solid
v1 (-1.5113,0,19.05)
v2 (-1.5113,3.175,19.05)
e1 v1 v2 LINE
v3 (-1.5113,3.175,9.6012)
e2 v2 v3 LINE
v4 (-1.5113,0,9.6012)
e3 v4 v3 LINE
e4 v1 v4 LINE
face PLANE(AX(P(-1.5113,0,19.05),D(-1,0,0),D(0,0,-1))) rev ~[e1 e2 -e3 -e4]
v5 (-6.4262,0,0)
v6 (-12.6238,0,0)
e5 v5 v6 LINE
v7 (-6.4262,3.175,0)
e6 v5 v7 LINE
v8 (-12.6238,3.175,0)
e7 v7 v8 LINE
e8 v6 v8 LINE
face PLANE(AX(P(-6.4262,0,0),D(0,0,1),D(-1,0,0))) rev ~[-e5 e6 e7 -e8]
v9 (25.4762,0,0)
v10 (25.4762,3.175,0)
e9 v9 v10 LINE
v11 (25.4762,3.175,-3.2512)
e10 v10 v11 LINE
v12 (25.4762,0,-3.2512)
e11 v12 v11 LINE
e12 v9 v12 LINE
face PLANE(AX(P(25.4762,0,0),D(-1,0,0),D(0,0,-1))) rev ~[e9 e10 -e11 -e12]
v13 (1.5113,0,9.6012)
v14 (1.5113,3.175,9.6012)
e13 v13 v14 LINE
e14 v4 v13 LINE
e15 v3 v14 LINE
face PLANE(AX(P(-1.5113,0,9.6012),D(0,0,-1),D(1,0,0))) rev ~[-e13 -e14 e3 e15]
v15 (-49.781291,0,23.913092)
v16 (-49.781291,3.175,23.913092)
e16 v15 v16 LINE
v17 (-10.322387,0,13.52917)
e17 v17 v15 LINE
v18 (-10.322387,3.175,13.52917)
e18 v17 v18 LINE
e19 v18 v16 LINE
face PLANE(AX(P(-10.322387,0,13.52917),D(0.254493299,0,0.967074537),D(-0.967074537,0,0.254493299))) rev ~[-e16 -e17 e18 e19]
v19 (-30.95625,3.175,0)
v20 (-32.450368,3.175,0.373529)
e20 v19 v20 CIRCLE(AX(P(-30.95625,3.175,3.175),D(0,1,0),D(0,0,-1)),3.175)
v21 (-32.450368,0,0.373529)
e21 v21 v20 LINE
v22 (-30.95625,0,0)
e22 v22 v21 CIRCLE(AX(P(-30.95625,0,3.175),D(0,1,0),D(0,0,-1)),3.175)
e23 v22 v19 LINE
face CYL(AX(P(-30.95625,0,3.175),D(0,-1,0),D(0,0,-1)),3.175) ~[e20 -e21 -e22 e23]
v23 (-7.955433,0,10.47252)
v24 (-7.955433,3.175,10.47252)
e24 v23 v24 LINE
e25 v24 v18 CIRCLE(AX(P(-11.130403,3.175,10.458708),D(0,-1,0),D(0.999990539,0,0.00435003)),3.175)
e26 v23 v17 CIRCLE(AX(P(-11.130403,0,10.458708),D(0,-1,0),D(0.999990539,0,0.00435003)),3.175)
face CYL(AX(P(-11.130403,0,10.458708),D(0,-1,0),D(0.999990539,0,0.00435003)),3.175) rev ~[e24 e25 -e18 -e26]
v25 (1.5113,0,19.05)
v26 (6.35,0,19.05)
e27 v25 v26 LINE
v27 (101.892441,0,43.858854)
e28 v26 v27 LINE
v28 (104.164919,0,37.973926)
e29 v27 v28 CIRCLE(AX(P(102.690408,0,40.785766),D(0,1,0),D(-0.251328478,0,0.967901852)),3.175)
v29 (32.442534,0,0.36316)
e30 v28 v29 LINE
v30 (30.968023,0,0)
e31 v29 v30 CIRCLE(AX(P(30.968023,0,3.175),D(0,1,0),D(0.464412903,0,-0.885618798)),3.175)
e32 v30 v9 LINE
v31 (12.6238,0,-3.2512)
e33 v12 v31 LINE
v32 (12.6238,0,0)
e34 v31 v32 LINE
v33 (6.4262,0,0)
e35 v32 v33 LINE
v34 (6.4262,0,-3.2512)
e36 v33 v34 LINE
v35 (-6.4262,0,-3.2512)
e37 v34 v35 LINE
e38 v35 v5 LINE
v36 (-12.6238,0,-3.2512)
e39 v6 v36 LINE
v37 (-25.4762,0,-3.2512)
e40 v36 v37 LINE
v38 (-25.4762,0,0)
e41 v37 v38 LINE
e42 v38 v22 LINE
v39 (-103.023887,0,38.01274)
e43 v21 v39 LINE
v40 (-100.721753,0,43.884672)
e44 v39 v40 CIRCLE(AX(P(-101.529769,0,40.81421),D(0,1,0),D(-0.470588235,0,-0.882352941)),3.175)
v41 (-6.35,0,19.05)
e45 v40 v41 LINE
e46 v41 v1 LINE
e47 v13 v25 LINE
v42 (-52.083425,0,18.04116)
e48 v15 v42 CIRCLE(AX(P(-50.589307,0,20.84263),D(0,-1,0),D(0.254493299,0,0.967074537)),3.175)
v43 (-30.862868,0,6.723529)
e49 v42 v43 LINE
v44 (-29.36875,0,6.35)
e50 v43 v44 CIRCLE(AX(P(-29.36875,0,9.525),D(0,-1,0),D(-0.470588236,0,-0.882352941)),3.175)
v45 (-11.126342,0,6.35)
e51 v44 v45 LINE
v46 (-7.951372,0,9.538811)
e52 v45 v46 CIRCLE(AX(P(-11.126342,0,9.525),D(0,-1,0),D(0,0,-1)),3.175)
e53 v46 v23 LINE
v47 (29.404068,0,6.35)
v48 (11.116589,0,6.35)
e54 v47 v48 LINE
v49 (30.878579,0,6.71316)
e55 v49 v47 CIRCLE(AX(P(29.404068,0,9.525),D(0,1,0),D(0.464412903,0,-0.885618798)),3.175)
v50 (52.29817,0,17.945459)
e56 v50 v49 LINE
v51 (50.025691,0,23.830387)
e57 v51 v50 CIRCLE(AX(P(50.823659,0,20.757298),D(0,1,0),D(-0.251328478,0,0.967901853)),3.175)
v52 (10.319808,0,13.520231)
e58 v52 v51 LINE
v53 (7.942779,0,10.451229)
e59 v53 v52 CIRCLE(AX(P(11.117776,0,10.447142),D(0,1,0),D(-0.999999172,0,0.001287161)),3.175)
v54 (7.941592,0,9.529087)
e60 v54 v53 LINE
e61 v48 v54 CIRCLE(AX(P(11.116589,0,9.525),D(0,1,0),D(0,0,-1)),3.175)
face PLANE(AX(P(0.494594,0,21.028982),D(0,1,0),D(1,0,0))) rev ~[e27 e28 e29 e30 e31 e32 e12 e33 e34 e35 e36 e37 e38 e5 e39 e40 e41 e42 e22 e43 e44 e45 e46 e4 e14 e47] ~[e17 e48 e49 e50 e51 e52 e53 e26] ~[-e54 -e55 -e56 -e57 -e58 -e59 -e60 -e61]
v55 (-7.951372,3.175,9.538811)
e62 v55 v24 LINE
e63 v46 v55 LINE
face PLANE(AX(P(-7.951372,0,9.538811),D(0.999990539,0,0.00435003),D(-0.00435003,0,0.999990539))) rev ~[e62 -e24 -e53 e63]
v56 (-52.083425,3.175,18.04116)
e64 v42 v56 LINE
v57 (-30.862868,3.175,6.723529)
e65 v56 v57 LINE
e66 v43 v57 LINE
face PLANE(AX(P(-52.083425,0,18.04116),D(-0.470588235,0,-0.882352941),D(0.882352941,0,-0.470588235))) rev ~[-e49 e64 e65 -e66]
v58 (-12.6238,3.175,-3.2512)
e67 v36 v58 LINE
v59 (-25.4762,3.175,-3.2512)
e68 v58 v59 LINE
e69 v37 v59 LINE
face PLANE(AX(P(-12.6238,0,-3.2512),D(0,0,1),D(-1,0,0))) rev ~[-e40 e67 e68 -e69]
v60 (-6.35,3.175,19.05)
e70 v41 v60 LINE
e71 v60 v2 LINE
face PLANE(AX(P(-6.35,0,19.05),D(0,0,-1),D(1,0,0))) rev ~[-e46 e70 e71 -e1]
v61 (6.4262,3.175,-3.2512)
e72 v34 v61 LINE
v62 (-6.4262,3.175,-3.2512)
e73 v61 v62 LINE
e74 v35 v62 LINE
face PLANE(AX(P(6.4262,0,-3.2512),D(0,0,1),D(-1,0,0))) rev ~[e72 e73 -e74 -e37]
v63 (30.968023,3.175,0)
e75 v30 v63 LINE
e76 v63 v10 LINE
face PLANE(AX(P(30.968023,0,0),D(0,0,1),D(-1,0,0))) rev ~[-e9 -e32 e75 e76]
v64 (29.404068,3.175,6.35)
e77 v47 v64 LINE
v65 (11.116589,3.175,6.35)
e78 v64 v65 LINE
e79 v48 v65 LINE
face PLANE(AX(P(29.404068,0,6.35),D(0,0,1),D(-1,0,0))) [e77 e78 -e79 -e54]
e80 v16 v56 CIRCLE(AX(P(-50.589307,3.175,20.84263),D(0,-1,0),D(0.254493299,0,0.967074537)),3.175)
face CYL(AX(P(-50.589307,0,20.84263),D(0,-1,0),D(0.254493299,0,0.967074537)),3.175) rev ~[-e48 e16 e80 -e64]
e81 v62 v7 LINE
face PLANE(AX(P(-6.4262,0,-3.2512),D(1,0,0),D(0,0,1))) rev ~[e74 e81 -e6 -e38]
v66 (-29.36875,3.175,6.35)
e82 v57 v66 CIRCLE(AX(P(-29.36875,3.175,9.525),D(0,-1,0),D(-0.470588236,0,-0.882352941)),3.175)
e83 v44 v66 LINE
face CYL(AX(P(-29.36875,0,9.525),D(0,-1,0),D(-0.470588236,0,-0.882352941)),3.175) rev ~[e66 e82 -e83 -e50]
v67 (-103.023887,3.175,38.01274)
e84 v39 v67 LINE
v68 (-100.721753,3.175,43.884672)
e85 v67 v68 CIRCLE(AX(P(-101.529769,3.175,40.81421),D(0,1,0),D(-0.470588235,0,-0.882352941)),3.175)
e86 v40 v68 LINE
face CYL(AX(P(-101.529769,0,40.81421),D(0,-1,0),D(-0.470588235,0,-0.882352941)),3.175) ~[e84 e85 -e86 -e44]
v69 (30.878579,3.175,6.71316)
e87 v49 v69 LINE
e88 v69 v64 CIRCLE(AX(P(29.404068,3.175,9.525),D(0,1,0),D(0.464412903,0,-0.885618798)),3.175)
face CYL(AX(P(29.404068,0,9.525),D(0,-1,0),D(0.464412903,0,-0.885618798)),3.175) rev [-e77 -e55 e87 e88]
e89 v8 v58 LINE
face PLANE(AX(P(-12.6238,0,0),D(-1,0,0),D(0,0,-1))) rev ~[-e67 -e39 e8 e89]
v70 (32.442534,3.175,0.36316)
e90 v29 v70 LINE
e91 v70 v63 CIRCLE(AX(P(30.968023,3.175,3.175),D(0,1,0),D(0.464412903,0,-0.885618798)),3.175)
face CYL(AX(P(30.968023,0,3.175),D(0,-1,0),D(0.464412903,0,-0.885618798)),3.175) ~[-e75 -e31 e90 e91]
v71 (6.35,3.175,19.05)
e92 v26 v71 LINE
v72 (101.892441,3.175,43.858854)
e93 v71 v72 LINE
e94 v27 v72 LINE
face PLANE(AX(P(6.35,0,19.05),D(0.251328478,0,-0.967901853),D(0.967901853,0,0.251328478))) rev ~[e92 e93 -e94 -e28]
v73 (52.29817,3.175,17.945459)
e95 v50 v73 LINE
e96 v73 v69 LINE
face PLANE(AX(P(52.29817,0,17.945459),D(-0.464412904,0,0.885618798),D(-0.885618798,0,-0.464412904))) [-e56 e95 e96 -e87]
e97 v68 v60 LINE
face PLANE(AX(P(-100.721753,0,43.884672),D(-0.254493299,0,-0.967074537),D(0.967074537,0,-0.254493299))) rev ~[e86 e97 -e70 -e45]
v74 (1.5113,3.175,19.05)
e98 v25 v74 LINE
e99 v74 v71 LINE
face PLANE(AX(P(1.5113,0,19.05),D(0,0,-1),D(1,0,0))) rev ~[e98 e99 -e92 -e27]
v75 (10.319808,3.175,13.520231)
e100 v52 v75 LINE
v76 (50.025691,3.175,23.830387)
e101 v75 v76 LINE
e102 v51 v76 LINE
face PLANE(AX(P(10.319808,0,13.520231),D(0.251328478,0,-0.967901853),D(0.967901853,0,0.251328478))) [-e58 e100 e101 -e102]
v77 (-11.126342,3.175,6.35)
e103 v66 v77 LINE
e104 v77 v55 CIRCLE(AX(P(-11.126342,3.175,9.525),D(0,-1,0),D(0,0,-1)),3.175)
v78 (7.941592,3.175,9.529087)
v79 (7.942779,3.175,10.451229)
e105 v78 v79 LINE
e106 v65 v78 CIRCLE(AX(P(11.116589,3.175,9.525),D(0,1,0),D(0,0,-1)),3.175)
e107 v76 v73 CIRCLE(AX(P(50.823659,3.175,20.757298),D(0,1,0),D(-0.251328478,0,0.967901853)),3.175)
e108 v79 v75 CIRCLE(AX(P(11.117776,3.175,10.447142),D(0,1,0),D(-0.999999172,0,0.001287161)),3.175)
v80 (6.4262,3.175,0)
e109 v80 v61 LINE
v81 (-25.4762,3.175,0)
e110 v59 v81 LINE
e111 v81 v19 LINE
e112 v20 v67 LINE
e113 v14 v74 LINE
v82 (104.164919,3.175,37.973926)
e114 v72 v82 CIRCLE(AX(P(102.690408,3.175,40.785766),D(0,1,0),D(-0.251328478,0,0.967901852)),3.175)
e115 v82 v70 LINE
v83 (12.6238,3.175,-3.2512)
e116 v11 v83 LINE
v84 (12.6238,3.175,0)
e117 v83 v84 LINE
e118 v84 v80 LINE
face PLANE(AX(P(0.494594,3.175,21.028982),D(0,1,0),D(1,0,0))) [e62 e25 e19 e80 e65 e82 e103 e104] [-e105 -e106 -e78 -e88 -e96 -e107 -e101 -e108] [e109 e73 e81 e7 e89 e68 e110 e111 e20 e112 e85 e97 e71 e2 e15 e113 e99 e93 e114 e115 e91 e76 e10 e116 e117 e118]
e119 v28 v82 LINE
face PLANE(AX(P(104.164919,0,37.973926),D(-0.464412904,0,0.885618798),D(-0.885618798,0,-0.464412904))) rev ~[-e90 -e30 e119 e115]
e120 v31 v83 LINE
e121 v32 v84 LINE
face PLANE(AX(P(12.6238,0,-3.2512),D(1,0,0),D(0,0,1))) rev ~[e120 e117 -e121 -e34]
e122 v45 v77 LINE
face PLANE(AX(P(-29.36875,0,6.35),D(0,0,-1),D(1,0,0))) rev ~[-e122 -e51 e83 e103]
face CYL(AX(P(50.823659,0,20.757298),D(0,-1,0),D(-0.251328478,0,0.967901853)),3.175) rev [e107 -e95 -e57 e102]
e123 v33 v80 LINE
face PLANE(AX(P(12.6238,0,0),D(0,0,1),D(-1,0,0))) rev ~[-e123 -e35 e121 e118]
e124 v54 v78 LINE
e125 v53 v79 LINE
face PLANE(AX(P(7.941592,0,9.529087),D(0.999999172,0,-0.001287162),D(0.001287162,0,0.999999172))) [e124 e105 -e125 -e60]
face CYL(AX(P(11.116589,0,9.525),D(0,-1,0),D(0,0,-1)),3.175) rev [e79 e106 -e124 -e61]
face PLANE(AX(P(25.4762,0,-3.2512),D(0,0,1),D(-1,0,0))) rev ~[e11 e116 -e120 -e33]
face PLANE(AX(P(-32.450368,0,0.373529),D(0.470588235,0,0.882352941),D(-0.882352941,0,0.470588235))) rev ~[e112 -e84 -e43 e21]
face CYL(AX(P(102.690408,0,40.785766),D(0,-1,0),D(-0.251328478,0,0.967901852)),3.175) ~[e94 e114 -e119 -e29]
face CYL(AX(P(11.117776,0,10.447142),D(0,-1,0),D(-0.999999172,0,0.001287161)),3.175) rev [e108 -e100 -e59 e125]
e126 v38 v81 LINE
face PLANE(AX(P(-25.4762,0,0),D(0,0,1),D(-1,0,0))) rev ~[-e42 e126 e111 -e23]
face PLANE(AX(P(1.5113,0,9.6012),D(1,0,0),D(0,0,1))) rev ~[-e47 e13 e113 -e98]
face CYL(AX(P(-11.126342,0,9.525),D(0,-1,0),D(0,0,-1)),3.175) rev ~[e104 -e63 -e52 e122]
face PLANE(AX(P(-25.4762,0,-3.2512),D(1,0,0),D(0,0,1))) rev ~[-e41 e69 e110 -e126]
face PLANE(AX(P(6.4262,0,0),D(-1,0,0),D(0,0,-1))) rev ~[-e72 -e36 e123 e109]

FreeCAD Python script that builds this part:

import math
import FreeCAD as App
import Part
import Sketcher
from FreeCAD import Vector
Q = App.Units.Quantity

doc = App.newDocument("Part")
params = doc.addObject("Spreadsheet::Sheet", "Params")
for row, (alias, value) in enumerate([
    ("sketch1_radius", "0.125 in"),
    ("sketch1_radius2", "0.125 in"),
    ("sketch1_radius3", "0.125 in"),
    ("sketch1_radius4", "0.125 in"),
    ("sketch1_radius5", "0.125 in"),
    ("pad1_length", "0.125 in"),
], start=1):
    params.set(f"A{row}", alias)
    params.set(f"B{row}", "=" + value)
    params.setAlias(f"B{row}", alias)

body = doc.addObject("PartDesign::Body", "Body")

sketch1 = body.newObject("Sketcher::SketchObject", "Sketch")
sketch1.AttachmentSupport = (doc.getObject("XZ_Plane"), [""])
sketch1.MapMode = "FlatFace"
sketch1.addGeometry([
    Part.LineSegment(Vector(-1.5113, 19.05, 0), Vector(-1.5113, 9.6012, 0)),
    Part.LineSegment(Vector(-1.5113, 9.6012, 0), Vector(1.5113, 9.6012, 0)),
    Part.LineSegment(Vector(1.5113, 9.6012, 0), Vector(1.5113, 19.05, 0)),
    Part.LineSegment(Vector(1.5113, 19.05, 0), Vector(6.35, 19.05, 0)),
    Part.LineSegment(Vector(6.35, 19.05, 0), Vector(101.892441, 43.858854, 0)),
    Part.ArcOfCircle(Part.Circle(Vector(102.690408, 40.785766, 0), Vector(0, 0, 1), 3.175), math.radians(-62.327767), math.radians(104.556139)),
    Part.LineSegment(Vector(104.164919, 37.973926, 0), Vector(32.442534, 0.36316, 0)),
    Part.ArcOfCircle(Part.Circle(Vector(30.968023, 3.175, 0), Vector(0, 0, 1), 3.175), math.radians(-90), math.radians(-62.327767)),
    Part.LineSegment(Vector(30.968023, 0, 0), Vector(25.4762, 0, 0)),
    Part.LineSegment(Vector(25.4762, 0, 0), Vector(25.4762, -3.2512, 0)),
    Part.LineSegment(Vector(25.4762, -3.2512, 0), Vector(12.6238, -3.2512, 0)),
    Part.LineSegment(Vector(12.6238, -3.2512, 0), Vector(12.6238, 0, 0)),
    Part.LineSegment(Vector(12.6238, 0, 0), Vector(6.4262, 0, 0)),
    Part.LineSegment(Vector(6.4262, 0, 0), Vector(6.4262, -3.2512, 0)),
    Part.LineSegment(Vector(6.4262, -3.2512, 0), Vector(-6.4262, -3.2512, 0)),
    Part.LineSegment(Vector(-6.4262, -3.2512, 0), Vector(-6.4262, 0, 0)),
    Part.LineSegment(Vector(-6.4262, 0, 0), Vector(-12.6238, 0, 0)),
    Part.LineSegment(Vector(-12.6238, 0, 0), Vector(-12.6238, -3.2512, 0)),
    Part.LineSegment(Vector(-12.6238, -3.2512, 0), Vector(-25.4762, -3.2512, 0)),
    Part.LineSegment(Vector(-25.4762, -3.2512, 0), Vector(-25.4762, 0, 0)),
    Part.LineSegment(Vector(-25.4762, 0, 0), Vector(-30.95625, 0, 0)),
    Part.ArcOfCircle(Part.Circle(Vector(-30.95625, 3.175, 0), Vector(0, 0, 1), 3.175), math.radians(-118.072487), math.radians(-90)),
    Part.LineSegment(Vector(-32.450368, 0.373529, 0), Vector(-103.023887, 38.01274, 0)),
    Part.ArcOfCircle(Part.Circle(Vector(-101.529769, 40.81421, 0), Vector(0, 0, 1), 3.175), math.radians(75.256437), math.radians(241.927513)),
    Part.LineSegment(Vector(-100.721753, 43.884672, 0), Vector(-6.35, 19.05, 0)),
    Part.LineSegment(Vector(-6.35, 19.05, 0), Vector(-1.5113, 19.05, 0)),
    Part.ArcOfCircle(Part.Circle(Vector(-50.589307, 20.84263, 0), Vector(0, 0, 1), 3.175), math.radians(75.256437), math.radians(241.927513)),
    Part.LineSegment(Vector(-52.083425, 18.04116, 0), Vector(-30.862868, 6.723529, 0)),
    Part.ArcOfCircle(Part.Circle(Vector(-29.36875, 9.525, 0), Vector(0, 0, 1), 3.175), math.radians(-118.072487), math.radians(-90)),
    Part.LineSegment(Vector(-29.36875, 6.35, 0), Vector(-11.126342, 6.35, 0)),
    Part.ArcOfCircle(Part.Circle(Vector(-11.126342, 9.525, 0), Vector(0, 0, 1), 3.175), math.radians(-90), math.radians(0.249239)),
    Part.LineSegment(Vector(-7.951372, 9.538811, 0), Vector(-7.955433, 10.47252, 0)),
    Part.ArcOfCircle(Part.Circle(Vector(-11.130403, 10.458708, 0), Vector(0, 0, 1), 3.175), math.radians(0.249239), math.radians(75.256437)),
    Part.LineSegment(Vector(-10.322387, 13.52917, 0), Vector(-49.781291, 23.913092, 0)),
    Part.LineSegment(Vector(7.942779, 10.451229, 0), Vector(7.941592, 9.529087, 0)),
    Part.ArcOfCircle(Part.Circle(Vector(11.116589, 9.525, 0), Vector(0, 0, 1), 3.175), math.radians(179.926251), math.radians(270)),
    Part.LineSegment(Vector(11.116589, 6.35, 0), Vector(29.404068, 6.35, 0)),
    Part.ArcOfCircle(Part.Circle(Vector(29.404068, 9.525, 0), Vector(0, 0, 1), 3.175), math.radians(-90), math.radians(-62.327767)),
    Part.LineSegment(Vector(30.878579, 6.71316, 0), Vector(52.29817, 17.945459, 0)),
    Part.ArcOfCircle(Part.Circle(Vector(50.823659, 20.757298, 0), Vector(0, 0, 1), 3.175), math.radians(-62.327767), math.radians(104.556139)),
    Part.LineSegment(Vector(50.025691, 23.830387, 0), Vector(10.319808, 13.520231, 0)),
    Part.ArcOfCircle(Part.Circle(Vector(11.117776, 10.447142, 0), Vector(0, 0, 1), 3.175), math.radians(104.556139), math.radians(179.926251)),
], False)
sketch1.addConstraint([
    Sketcher.Constraint("Coincident", 0, 2, 1, 1),
    Sketcher.Constraint("Coincident", 1, 2, 2, 1),
    Sketcher.Constraint("Coincident", 2, 2, 3, 1),
    Sketcher.Constraint("Coincident", 3, 2, 4, 1),
    Sketcher.Constraint("Coincident", 4, 2, 5, 2),
    Sketcher.Constraint("Coincident", 5, 1, 6, 1),
    Sketcher.Constraint("Coincident", 6, 2, 7, 2),
    Sketcher.Constraint("Coincident", 7, 1, 8, 1),
    Sketcher.Constraint("Coincident", 8, 2, 9, 1),
    Sketcher.Constraint("Coincident", 9, 2, 10, 1),
    Sketcher.Constraint("Coincident", 10, 2, 11, 1),
    Sketcher.Constraint("Coincident", 11, 2, 12, 1),
    Sketcher.Constraint("Coincident", 12, 2, 13, 1),
    Sketcher.Constraint("Coincident", 13, 2, 14, 1),
    Sketcher.Constraint("Coincident", 14, 2, 15, 1),
    Sketcher.Constraint("Coincident", 15, 2, 16, 1),
    Sketcher.Constraint("Coincident", 16, 2, 17, 1),
    Sketcher.Constraint("Coincident", 17, 2, 18, 1),
    Sketcher.Constraint("Coincident", 18, 2, 19, 1),
    Sketcher.Constraint("Coincident", 19, 2, 20, 1),
    Sketcher.Constraint("Coincident", 20, 2, 21, 2),
    Sketcher.Constraint("Coincident", 21, 1, 22, 1),
    Sketcher.Constraint("Coincident", 22, 2, 23, 2),
    Sketcher.Constraint("Coincident", 23, 1, 24, 1),
    Sketcher.Constraint("Coincident", 24, 2, 25, 1),
    Sketcher.Constraint("Coincident", 25, 2, 0, 1),
    Sketcher.Constraint("Coincident", 26, 2, 27, 1),
    Sketcher.Constraint("Coincident", 27, 2, 28, 1),
    Sketcher.Constraint("Coincident", 28, 2, 29, 1),
    Sketcher.Constraint("Coincident", 29, 2, 30, 1),
    Sketcher.Constraint("Coincident", 30, 2, 31, 1),
    Sketcher.Constraint("Coincident", 31, 2, 32, 1),
    Sketcher.Constraint("Coincident", 32, 2, 33, 1),
    Sketcher.Constraint("Coincident", 33, 2, 26, 1),
    Sketcher.Constraint("Coincident", 34, 2, 35, 1),
    Sketcher.Constraint("Coincident", 35, 2, 36, 1),
    Sketcher.Constraint("Coincident", 36, 2, 37, 1),
    Sketcher.Constraint("Coincident", 37, 2, 38, 1),
    Sketcher.Constraint("Coincident", 38, 2, 39, 1),
    Sketcher.Constraint("Coincident", 39, 2, 40, 1),
    Sketcher.Constraint("Coincident", 40, 2, 41, 1),
    Sketcher.Constraint("Coincident", 41, 2, 34, 1),
    Sketcher.Constraint("Vertical", 0),
    Sketcher.Constraint("Horizontal", 1),
    Sketcher.Constraint("Vertical", 2),
    Sketcher.Constraint("Horizontal", 3),
    Sketcher.Constraint("Horizontal", 8),
    Sketcher.Constraint("Vertical", 9),
    Sketcher.Constraint("Horizontal", 10),
    Sketcher.Constraint("Vertical", 11),
    Sketcher.Constraint("Horizontal", 12),
    Sketcher.Constraint("Vertical", 13),
    Sketcher.Constraint("Horizontal", 14),
    Sketcher.Constraint("Vertical", 15),
    Sketcher.Constraint("Horizontal", 16),
    Sketcher.Constraint("Vertical", 17),
    Sketcher.Constraint("Horizontal", 18),
    Sketcher.Constraint("Vertical", 19),
    Sketcher.Constraint("Horizontal", 20),
    Sketcher.Constraint("Horizontal", 25),
    Sketcher.Constraint("Horizontal", 29),
    Sketcher.Constraint("Horizontal", 36),
    Sketcher.Constraint("PointOnObject", 7, 1, -1),
    Sketcher.Constraint("PointOnObject", 11, 2, -1),
    Sketcher.Constraint("PointOnObject", 15, 2, -1),
    Sketcher.Constraint("PointOnObject", 19, 2, -1),
    Sketcher.Constraint("Radius", 5, Q("0.125 in")),
    Sketcher.Constraint("Radius", 7, Q("0.125 in")),
    Sketcher.Constraint("Radius", 21, Q("0.125 in")),
    Sketcher.Constraint("Radius", 23, Q("0.125 in")),
    Sketcher.Constraint("Radius", 26, Q("0.125 in")),
    Sketcher.Constraint("Radius", 28, Q("0.125 in")),
    Sketcher.Constraint("Radius", 30, Q("0.125 in")),
    Sketcher.Constraint("Radius", 32, Q("0.125 in")),
    Sketcher.Constraint("Radius", 35, Q("0.125 in")),
    Sketcher.Constraint("Radius", 37, Q("0.125 in")),
    Sketcher.Constraint("Radius", 39, Q("0.125 in")),
    Sketcher.Constraint("Radius", 41, Q("0.125 in")),
    Sketcher.Constraint("DistanceX", 1, 1, 1, 2, Q("0.119 in")),
    Sketcher.Constraint("DistanceX", 10, 2, 10, 1, Q("0.506 in")),
    Sketcher.Constraint("DistanceX", 12, 2, 12, 1, Q("0.244 in")),
    Sketcher.Constraint("DistanceX", 14, 2, 14, 1, Q("0.506 in")),
    Sketcher.Constraint("DistanceX", 16, 2, 16, 1, Q("0.244 in")),
    Sketcher.Constraint("DistanceX", 18, 2, 18, 1, Q("0.506 in")),
    Sketcher.Constraint("DistanceY", 0, 2, 0, 1, Q("0.372 in")),
    Sketcher.Constraint("DistanceY", 2, 1, 2, 2, Q("0.372 in")),
    Sketcher.Constraint("DistanceY", 9, 2, 9, 1, Q("0.128 in")),
    Sketcher.Constraint("DistanceY", 13, 2, 13, 1, Q("0.128 in")),
    Sketcher.Constraint("DistanceY", 17, 2, 17, 1, Q("0.128 in")),
    Sketcher.Constraint("DistanceY", -1, 1, 2, 2, Q("0.75 in")),
    Sketcher.Constraint("DistanceX", -1, 1, 3, 2, Q("0.25 in")),
    Sketcher.Constraint("DistanceX", 24, 2, -1, 1, Q("0.25 in")),
    Sketcher.Constraint("DistanceY", -1, 1, 28, 2, Q("0.25 in")),
    Sketcher.Constraint("DistanceY", -1, 1, 35, 2, Q("0.25 in")),
    Sketcher.Constraint("DistanceY", 21, 1, 27, 2, Q("0.25 in")),
    Sketcher.Constraint("DistanceY", 6, 2, 37, 2, Q("0.25 in")),
    Sketcher.Constraint("DistanceX", 3, 1, 3, 2, Q("0.1905 in")),
    Sketcher.Constraint("DistanceX", 21, 3, -1, 1, Q("1.21875 in")),
    Sketcher.Constraint("DistanceX", 28, 3, -1, 1, Q("1.15625 in")),
    Sketcher.Constraint("DistanceX", -1, 1, 8, 2, Q("1.003 in")),
    Sketcher.Constraint("DistanceX", 20, 2, -1, 1, Q("1.21875 in")),
    Sketcher.Constraint("DistanceX", 28, 2, -1, 1, Q("1.15625 in")),
    Sketcher.Constraint("DistanceX", 34, 2, 35, 2, Q("0.1249999 in")),
    Sketcher.Constraint("DistanceX", 26, 3, 32, 3, Q("1.5535001 in")),
    Sketcher.Constraint("DistanceX", 7, 3, 4, 2, Q("2.7922999 in")),
    Sketcher.Constraint("DistanceX", 29, 1, 29, 2, 18.242408),
    Sketcher.Constraint("DistanceX", 36, 1, 36, 2, 18.287479),
    Sketcher.Constraint("DistanceY", -1, 1, 39, 3, 20.757298),
    Sketcher.Constraint("DistanceY", 37, 2, 38, 2, 11.232298),
    Sketcher.Constraint("DistanceX", 37, 3, 38, 2, 22.894102),
    Sketcher.Constraint("DistanceX", 36, 2, 38, 2, 22.894102),
    Sketcher.Constraint("DistanceY", 41, 2, 40, 2, 3.069002),
    Sketcher.Constraint("Distance", 6, 80.985618),
    Sketcher.Constraint("Distance", 22, 79.983322),
    Sketcher.Constraint("Distance", 33, 40.80234),
    Sketcher.Constraint("DistanceX", 8, 2, 8, 1, 5.491823),
    Sketcher.Constraint("DistanceX", -1, 1, 5, 3, 102.690408),
    Sketcher.Constraint("DistanceX", 23, 3, -1, 1, 101.529769),
    Sketcher.Constraint("DistanceY", -1, 1, 23, 3, 40.81421),
    Sketcher.Constraint("DistanceY", -1, 1, 26, 3, 20.84263),
    Sketcher.Constraint("DistanceX", 30, 3, -1, 1, 11.126342),
    Sketcher.Constraint("DistanceY", -1, 1, 32, 3, 10.458708),
    Sketcher.Constraint("DistanceX", -1, 1, 35, 3, 11.116589),
    Sketcher.Constraint("DistanceX", -1, 1, 39, 3, 50.823659),
    Sketcher.Constraint("DistanceX", -1, 1, 4, 2, 101.892441),
    Sketcher.Constraint("DistanceX", -1, 1, 5, 1, 104.164919),
    Sketcher.Constraint("DistanceY", -1, 1, 21, 1, 0.373529),
    Sketcher.Constraint("DistanceY", -1, 1, 23, 1, 43.884672),
    Sketcher.Constraint("DistanceY", -1, 1, 26, 2, 18.04116),
    Sketcher.Constraint("DistanceX", 30, 2, -1, 1, 7.951372),
    Sketcher.Constraint("DistanceY", -1, 1, 31, 2, 10.47252),
    Sketcher.Constraint("DistanceY", -1, 1, 32, 2, 13.52917),
    Sketcher.Constraint("DistanceX", 33, 2, -1, 1, 49.781291),
    Sketcher.Constraint("DistanceX", -1, 1, 39, 2, 50.025691),
    Sketcher.Constraint("DistanceX", -1, 1, 40, 2, 10.319808),
    Sketcher.Constraint("DistanceY", -1, 1, 40, 2, 13.520231),
    Sketcher.Constraint("DistanceX", -1, 1, 41, 2, 7.942779),
    Sketcher.Constraint("Distance", 34, 0.922143),
])
sketch1.setExpression("Constraints[66]", "Params.sketch1_radius")
sketch1.setExpression("Constraints[67]", "Params.sketch1_radius2")
sketch1.setExpression("Constraints[68]", "Params.sketch1_radius3")
sketch1.setExpression("Constraints[69]", "Params.sketch1_radius4")
sketch1.setExpression("Constraints[70]", "Params.sketch1_radius5")
pad1 = body.newObject("PartDesign::Pad", "Pad")
pad1.Profile = sketch1
pad1.setExpression("Length", "Params.pad1_length")
pad1.Reversed = True

doc.recompute()
